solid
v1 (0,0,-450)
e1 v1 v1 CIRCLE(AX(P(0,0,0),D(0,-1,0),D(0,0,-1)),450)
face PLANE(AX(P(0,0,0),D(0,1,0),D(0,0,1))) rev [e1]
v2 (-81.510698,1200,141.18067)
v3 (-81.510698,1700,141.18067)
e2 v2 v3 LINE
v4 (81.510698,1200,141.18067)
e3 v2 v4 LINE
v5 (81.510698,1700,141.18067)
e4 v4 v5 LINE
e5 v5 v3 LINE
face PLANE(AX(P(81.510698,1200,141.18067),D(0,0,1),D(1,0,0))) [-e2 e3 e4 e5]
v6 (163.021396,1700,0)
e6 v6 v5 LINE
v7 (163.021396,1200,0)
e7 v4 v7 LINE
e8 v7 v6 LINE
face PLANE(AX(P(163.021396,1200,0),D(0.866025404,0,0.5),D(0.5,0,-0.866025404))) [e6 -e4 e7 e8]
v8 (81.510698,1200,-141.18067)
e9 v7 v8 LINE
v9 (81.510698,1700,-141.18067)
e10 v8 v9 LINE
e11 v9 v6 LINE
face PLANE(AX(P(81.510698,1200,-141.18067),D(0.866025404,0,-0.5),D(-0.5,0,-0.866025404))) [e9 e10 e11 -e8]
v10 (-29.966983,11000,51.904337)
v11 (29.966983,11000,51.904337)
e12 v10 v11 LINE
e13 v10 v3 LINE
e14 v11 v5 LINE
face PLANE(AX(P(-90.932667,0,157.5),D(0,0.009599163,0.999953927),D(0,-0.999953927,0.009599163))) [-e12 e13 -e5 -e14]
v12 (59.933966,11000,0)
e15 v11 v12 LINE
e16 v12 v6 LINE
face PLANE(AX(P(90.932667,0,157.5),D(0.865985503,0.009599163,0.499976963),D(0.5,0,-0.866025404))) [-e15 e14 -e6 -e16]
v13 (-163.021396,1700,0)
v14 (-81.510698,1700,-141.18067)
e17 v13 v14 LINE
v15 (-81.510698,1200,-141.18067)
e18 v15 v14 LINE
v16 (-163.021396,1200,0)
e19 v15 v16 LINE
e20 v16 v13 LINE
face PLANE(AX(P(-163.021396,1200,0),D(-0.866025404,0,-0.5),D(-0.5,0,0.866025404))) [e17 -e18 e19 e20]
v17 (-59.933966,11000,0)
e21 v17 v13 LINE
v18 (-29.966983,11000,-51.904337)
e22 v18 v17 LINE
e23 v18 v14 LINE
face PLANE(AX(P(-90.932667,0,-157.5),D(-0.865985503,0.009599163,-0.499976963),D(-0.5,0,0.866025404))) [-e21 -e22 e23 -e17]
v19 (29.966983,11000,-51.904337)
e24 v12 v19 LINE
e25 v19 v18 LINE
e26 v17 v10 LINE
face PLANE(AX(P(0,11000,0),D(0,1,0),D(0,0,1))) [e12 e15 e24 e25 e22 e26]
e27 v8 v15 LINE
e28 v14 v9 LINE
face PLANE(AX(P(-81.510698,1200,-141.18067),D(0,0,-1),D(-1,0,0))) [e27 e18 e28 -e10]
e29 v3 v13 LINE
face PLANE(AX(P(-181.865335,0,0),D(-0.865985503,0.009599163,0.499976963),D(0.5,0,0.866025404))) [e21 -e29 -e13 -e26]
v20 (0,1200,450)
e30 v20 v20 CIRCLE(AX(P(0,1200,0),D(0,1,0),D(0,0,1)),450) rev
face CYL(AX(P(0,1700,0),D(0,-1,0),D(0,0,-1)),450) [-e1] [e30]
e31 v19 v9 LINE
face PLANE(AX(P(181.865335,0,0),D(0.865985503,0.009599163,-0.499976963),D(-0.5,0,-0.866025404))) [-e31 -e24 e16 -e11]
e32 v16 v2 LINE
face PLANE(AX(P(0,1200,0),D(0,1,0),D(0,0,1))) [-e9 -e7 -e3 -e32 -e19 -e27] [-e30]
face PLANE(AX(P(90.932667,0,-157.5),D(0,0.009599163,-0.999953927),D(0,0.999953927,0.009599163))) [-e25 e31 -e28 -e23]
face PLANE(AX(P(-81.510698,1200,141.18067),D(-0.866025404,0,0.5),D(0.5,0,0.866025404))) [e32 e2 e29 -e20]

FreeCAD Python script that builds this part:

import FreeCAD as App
import Part
import Sketcher
from FreeCAD import Vector
Q = App.Units.Quantity


def add_polygon(sketch, points):
    """Adds a closed chain of lines whose ends are joined by coincident constraints."""
    first, n = sketch.GeometryCount, len(points)
    for a, b in zip(points, points[1:] + points[:1]):
        sketch.addGeometry(Part.LineSegment(App.Vector(*a, 0), App.Vector(*b, 0)), False)
    for i in range(n):
        sketch.addConstraint(Sketcher.Constraint("Coincident", first + i, 2, first + (i + 1) % n, 1))

doc = App.newDocument("Part")
body = doc.addObject("PartDesign::Body", "Body")

# Sketch on XZ plane
sketch1 = body.newObject("Sketcher::SketchObject", "Sketch")
sketch1.AttachmentSupport = (doc.getObject("XZ_Plane"), [""])
sketch1.MapMode = "FlatFace"
add_polygon(sketch1, [(182, 0), (91, -158), (-91, -158), (-182, 0), (-91, 158), (91, 158)])  # lines 0-5
sketch1.addConstraint(Sketcher.Constraint("Horizontal", 1))
sketch1.addConstraint(Sketcher.Constraint("Horizontal", 4))
sketch1.addConstraint(Sketcher.Constraint("Symmetric", 0, 2, 3, 2, -1, 1))
sketch1.addConstraint(Sketcher.Constraint("Symmetric", 2, 2, 5, 2, -1, 1))
sketch1.addConstraint(Sketcher.Constraint("PointOnObject", 2, 2, -1))
sketch1.addConstraint(Sketcher.Constraint("Parallel", 2, 5))
sketch1.addConstraint(Sketcher.Constraint("Vertical", 1, 2, 3, 2))
sketch1.addConstraint(Sketcher.Constraint("Angle", 0, Q("-120 deg")))
sketch1.addConstraint(Sketcher.Constraint("DistanceY", 1, 2, 3, 2, Q("315 mm")))
sketch1.addConstraint(Sketcher.Constraint("DistanceX", 1, 2, 1, 1, Q("181.865335 mm")))
pad1 = body.newObject("PartDesign::Pad", "Pad")
pad1.Profile = sketch1
pad1.Length = 11000
pad1.Reversed = True
pad1.TaperAngle = -0.55

# Sketch on XZ plane
sketch2 = body.newObject("Sketcher::SketchObject", "Sketch001")
sketch2.AttachmentSupport = (doc.getObject("XZ_Plane"), [""])
sketch2.MapMode = "FlatFace"
sketch2.addGeometry(Part.Circle(Vector(0, 0, 0), Vector(0, 0, 1), 450), False)
sketch2.addConstraint(Sketcher.Constraint("Coincident", 0, 3, -1, 1))
sketch2.addConstraint(Sketcher.Constraint("Diameter", 0, Q("900 mm")))
pad2 = body.newObject("PartDesign::Pad", "Pad001")
pad2.Profile = sketch2
pad2.Length = 1700
pad2.Reversed = True

# Sketch on XZ plane
sketch3 = body.newObject("Sketcher::SketchObject", "Sketch002")
sketch3.AttachmentSupport = (doc.getObject("XZ_Plane"), [""])
sketch3.MapMode = "FlatFace"
sketch3.AttachmentOffset = App.Placement(Vector(0, 0, -1700), App.Rotation())
sketch3.addGeometry(Part.Circle(Vector(0, 0, 0), Vector(0, 0, 1), 467), False)  # 0
add_polygon(sketch3, [(82, -141), (163, 0), (82, 141), (-82, 141), (-163, 0), (-82, -141)])  # lines 1-6
sketch3.addConstraint(Sketcher.Constraint("Horizontal", 3))
sketch3.addConstraint(Sketcher.Constraint("Horizontal", 6))
sketch3.addConstraint(Sketcher.Constraint("Coincident", 0, 3, -1, 1))
sketch3.addConstraint(Sketcher.Constraint("Symmetric", 1, 2, 4, 2, -1, 1))
sketch3.addConstraint(Sketcher.Constraint("Symmetric", 2, 2, 5, 2, -1, 1))
sketch3.addConstraint(Sketcher.Constraint("PointOnObject", 1, 2, -1))
sketch3.addConstraint(Sketcher.Constraint("Parallel", 1, 4))
sketch3.addConstraint(Sketcher.Constraint("Vertical", 3, 2, 5, 2))
sketch3.addConstraint(Sketcher.Constraint("Angle", 1, Q("60 deg")))
sketch3.addConstraint(Sketcher.Constraint("Diameter", 0, Q("933.785895 mm")))
sketch3.addConstraint(Sketcher.Constraint("DistanceX", 3, 2, 3, 1, Q("163.021396 mm")))
sketch3.addConstraint(Sketcher.Constraint("DistanceY", -1, 1, 2, 2, Q("141.18067 mm")))
pocket1 = body.newObject("PartDesign::Pocket", "Pocket")
pocket1.Profile = sketch3
pocket1.Length = 500
pocket1.Reversed = True

doc.recompute()
